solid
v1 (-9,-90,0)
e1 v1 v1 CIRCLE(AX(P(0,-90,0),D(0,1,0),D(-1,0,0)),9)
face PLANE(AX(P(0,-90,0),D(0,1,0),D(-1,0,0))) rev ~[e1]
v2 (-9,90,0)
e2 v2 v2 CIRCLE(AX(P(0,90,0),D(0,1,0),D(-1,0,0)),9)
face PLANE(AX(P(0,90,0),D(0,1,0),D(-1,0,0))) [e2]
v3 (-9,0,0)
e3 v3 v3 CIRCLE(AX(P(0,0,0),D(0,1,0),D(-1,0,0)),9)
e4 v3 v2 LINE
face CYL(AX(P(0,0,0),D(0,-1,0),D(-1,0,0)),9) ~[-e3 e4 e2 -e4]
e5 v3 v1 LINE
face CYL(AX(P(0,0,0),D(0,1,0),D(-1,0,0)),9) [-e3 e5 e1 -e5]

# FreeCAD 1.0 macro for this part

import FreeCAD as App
import Part
import Sketcher

doc = App.newDocument("Part")
body = doc.addObject("PartDesign::Body", "Body")

# Sketch on XZ plane
sketch1 = body.newObject("Sketcher::SketchObject", "Sketch")
sketch1.AttachmentSupport = (doc.getObject("XZ_Plane"), [""])
sketch1.MapMode = "FlatFace"
sketch1.addGeometry(Part.Circle(App.Vector(0, 0, 0), App.Vector(0, 0, 1), 9), False)
sketch1.addConstraint([
    Sketcher.Constraint("Coincident", 0, 3, -1, 1),
    Sketcher.Constraint("Diameter", 0, 18.0),
])
pad1 = body.newObject("PartDesign::Pad", "Pad")
pad1.Profile = sketch1
pad1.Length = 180
pad1.Midplane = True

doc.recompute()
